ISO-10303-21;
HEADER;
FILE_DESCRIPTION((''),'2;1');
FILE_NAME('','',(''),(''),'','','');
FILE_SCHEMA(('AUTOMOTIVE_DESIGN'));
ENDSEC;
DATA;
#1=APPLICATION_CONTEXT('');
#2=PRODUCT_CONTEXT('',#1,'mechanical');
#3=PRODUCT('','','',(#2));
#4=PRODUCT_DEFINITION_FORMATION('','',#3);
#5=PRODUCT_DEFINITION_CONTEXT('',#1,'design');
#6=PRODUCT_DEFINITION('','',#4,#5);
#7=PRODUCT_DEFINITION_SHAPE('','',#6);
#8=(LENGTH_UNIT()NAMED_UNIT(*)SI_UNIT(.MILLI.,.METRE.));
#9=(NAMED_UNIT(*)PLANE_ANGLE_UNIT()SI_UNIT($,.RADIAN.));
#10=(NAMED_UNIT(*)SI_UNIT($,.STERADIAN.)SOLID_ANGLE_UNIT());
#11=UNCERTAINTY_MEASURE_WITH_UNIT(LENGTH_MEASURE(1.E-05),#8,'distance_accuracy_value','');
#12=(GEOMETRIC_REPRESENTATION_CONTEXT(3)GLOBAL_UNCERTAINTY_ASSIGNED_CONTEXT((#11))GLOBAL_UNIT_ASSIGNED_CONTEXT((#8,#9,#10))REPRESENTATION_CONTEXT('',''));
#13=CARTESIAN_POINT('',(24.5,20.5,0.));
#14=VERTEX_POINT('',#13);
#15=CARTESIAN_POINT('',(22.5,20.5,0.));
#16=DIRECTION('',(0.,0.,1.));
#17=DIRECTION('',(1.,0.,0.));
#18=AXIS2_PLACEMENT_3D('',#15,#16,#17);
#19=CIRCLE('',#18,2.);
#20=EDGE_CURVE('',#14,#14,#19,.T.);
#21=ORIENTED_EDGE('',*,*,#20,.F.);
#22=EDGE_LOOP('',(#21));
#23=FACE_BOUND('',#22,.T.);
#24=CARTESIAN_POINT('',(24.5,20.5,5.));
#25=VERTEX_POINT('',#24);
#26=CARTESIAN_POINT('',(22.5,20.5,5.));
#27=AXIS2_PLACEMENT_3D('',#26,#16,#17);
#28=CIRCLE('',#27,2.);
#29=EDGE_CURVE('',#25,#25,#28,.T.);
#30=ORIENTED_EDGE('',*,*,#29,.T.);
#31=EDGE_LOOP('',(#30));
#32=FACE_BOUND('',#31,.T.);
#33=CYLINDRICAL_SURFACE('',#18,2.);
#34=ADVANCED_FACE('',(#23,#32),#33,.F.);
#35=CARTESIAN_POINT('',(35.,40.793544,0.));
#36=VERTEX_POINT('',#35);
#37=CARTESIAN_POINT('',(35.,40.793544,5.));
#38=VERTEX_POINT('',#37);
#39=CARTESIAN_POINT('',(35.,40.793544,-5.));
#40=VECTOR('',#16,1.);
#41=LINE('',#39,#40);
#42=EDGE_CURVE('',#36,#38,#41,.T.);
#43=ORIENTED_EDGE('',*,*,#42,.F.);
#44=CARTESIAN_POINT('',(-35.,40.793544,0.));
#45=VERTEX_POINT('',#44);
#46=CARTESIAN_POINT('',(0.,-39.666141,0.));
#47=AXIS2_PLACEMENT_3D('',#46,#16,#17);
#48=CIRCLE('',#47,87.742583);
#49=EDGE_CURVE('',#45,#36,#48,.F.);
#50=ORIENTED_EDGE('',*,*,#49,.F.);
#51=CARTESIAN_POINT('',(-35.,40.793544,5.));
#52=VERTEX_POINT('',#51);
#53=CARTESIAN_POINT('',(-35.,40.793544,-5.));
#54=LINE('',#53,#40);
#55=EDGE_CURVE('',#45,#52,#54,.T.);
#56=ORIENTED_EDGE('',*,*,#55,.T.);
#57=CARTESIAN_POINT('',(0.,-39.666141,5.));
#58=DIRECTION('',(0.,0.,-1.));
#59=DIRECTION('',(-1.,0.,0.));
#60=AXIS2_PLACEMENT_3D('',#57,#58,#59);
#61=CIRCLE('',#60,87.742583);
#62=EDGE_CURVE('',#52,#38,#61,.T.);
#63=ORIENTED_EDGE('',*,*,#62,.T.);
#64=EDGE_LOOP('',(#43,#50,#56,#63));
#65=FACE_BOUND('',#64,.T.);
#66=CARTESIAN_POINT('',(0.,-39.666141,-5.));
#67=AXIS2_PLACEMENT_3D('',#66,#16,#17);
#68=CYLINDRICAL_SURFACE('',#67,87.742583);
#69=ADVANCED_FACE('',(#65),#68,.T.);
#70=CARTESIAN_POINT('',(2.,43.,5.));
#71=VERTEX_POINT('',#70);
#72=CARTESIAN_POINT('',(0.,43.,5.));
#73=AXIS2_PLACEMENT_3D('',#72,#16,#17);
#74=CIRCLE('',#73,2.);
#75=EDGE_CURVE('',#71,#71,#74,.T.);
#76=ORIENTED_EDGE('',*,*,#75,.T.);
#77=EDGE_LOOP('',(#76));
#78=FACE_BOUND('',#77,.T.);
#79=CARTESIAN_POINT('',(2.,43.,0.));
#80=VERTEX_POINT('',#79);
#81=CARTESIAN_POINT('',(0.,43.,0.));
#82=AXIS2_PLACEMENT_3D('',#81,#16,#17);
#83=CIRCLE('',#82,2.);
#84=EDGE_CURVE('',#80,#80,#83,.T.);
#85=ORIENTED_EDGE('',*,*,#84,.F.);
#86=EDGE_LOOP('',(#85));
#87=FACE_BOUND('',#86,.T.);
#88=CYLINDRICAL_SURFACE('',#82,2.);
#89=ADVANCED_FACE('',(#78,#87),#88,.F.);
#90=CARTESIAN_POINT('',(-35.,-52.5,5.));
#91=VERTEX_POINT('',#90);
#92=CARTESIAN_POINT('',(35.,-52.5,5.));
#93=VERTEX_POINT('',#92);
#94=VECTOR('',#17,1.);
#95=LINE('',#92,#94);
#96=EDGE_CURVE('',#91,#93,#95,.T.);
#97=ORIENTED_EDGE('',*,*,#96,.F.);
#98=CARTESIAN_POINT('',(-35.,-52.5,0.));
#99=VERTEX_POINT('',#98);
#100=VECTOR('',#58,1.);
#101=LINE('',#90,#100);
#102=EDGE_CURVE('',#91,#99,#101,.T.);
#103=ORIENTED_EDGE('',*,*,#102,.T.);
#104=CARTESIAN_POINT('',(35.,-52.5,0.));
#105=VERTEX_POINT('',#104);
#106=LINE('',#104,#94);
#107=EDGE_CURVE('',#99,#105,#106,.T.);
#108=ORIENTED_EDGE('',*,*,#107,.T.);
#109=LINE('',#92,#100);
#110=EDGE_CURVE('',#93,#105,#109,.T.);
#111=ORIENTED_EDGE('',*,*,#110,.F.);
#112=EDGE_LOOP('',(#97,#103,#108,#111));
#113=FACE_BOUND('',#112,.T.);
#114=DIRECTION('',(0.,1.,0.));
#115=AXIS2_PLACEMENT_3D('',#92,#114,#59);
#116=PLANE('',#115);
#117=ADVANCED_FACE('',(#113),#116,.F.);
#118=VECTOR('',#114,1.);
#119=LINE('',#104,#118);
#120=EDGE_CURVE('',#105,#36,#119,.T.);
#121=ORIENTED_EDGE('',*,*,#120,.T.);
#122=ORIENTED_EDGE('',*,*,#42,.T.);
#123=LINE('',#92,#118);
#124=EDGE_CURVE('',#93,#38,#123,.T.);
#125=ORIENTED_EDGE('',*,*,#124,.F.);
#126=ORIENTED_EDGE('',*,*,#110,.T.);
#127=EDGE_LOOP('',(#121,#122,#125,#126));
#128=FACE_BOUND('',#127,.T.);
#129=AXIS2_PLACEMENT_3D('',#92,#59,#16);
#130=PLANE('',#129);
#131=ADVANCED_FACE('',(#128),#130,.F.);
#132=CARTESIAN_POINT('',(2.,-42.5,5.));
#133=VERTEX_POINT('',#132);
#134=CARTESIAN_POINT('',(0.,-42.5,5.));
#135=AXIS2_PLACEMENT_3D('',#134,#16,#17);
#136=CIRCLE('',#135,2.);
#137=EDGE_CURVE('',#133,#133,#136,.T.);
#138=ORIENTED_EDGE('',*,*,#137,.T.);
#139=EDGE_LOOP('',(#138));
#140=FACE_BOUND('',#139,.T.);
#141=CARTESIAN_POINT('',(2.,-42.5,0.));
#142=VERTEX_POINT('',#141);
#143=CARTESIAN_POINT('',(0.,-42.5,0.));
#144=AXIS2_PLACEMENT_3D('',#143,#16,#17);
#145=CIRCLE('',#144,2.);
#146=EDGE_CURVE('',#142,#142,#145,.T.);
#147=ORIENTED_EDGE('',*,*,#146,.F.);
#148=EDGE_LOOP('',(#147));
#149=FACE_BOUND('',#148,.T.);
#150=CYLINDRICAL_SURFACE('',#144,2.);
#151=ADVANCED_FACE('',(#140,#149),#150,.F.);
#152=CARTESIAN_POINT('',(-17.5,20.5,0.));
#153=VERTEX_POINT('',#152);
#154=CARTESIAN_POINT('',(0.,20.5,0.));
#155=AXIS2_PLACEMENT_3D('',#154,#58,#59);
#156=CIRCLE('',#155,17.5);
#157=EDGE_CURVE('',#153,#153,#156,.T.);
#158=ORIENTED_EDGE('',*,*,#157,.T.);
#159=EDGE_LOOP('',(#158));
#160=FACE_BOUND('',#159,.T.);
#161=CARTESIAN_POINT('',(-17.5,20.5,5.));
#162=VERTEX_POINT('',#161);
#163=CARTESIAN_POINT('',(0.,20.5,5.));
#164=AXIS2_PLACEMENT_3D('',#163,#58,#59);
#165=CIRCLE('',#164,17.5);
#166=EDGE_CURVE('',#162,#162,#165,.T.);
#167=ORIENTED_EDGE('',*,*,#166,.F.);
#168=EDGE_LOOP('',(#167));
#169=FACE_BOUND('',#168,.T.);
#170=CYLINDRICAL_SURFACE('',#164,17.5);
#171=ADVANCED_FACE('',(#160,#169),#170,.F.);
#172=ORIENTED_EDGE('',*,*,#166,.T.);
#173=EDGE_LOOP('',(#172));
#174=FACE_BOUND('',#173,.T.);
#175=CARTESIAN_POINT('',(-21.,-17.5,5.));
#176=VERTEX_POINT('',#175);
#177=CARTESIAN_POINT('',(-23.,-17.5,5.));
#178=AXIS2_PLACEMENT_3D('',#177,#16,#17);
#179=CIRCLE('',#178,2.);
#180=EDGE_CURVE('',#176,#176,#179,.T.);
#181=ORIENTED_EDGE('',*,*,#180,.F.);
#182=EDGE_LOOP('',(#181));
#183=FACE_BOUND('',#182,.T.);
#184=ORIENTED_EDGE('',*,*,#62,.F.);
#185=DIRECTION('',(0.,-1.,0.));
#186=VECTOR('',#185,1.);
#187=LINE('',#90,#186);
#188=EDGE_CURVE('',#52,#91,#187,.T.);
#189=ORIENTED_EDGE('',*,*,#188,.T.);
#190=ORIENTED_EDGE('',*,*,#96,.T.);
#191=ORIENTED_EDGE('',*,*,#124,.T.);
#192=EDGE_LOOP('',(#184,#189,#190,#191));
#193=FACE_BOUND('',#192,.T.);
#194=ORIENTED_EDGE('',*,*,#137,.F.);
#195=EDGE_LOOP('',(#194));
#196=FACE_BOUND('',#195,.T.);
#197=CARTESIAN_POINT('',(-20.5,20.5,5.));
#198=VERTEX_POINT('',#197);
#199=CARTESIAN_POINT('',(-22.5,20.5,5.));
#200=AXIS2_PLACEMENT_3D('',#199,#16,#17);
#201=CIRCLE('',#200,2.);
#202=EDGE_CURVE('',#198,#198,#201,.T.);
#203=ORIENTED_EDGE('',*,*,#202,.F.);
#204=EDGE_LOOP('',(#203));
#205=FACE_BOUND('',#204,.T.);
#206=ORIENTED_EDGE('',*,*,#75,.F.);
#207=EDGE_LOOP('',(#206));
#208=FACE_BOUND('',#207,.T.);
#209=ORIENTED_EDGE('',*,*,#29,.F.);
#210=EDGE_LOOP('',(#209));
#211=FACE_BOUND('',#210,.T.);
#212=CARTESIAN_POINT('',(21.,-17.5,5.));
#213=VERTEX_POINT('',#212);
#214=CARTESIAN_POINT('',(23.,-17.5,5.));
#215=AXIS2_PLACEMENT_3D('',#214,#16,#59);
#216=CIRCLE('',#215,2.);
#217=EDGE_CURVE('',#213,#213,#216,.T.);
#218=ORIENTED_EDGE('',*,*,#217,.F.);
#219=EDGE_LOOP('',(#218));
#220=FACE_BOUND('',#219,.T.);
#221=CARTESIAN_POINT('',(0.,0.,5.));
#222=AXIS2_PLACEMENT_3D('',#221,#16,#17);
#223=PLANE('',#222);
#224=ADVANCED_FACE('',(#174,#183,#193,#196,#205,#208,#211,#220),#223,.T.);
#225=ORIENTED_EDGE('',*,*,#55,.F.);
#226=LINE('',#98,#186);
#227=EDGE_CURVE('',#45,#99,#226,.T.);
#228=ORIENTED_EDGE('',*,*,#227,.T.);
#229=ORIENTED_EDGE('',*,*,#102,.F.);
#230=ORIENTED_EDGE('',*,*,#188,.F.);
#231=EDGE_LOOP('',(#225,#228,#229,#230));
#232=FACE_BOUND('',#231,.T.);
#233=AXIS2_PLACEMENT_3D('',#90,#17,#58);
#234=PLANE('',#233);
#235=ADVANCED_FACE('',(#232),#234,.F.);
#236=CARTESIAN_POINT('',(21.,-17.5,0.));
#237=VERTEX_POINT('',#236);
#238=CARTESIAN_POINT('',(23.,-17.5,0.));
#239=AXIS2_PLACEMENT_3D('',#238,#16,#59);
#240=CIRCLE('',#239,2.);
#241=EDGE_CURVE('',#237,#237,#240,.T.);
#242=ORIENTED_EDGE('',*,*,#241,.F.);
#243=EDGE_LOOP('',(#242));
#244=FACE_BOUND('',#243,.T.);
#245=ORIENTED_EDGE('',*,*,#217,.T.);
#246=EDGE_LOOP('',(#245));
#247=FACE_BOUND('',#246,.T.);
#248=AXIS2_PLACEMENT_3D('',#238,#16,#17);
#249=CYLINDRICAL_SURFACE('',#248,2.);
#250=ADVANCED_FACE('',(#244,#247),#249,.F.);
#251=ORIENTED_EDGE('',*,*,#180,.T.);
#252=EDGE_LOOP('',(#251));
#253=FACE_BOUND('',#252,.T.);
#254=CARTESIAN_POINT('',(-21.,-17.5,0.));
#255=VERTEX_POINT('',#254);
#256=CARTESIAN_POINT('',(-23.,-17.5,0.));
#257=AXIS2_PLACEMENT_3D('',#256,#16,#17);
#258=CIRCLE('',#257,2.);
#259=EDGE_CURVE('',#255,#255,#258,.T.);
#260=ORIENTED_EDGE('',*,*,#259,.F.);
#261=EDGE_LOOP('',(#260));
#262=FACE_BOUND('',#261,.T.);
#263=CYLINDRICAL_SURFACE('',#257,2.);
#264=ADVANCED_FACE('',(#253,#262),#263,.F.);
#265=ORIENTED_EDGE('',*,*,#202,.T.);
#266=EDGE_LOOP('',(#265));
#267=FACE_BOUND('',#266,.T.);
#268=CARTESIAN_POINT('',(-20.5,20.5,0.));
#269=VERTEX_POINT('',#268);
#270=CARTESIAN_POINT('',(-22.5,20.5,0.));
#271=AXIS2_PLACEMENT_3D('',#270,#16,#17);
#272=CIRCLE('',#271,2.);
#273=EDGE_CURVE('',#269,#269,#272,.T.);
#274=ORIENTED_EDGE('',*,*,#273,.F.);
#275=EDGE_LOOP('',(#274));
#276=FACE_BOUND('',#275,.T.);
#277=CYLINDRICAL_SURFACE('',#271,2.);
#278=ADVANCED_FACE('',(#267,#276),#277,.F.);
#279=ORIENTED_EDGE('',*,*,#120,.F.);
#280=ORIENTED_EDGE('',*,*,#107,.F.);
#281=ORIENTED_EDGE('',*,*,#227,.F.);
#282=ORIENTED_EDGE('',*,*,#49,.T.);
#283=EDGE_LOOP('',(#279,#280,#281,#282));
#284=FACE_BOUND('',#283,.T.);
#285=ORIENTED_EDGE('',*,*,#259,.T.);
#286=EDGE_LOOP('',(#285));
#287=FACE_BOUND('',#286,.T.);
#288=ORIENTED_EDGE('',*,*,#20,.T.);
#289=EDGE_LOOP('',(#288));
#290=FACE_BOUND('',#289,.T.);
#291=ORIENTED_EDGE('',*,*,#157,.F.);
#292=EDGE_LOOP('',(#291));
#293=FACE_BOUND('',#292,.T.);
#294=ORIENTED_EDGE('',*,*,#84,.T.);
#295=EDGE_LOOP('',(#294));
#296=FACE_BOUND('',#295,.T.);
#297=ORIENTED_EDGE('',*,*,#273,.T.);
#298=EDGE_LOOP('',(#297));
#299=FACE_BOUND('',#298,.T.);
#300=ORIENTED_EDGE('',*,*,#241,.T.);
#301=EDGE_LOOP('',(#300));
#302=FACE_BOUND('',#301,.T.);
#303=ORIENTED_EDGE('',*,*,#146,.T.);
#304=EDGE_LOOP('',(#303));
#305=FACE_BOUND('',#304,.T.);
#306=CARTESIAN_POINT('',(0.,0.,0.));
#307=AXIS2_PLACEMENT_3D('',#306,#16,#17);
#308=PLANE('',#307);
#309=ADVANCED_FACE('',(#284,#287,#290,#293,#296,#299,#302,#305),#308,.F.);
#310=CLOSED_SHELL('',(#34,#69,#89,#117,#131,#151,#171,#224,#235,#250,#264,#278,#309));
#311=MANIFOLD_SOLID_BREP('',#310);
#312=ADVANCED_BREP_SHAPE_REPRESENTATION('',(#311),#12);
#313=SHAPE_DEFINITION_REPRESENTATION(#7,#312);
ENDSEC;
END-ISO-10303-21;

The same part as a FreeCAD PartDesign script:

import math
import FreeCAD as App
import Part
import Sketcher

V = App.Vector

doc = App.newDocument("Part")
body = doc.addObject("PartDesign::Body", "Body")

# Sketch on XY plane
sketch1 = doc.addObject("Sketcher::SketchObject", "Sketch")
body.addObject(sketch1)
sketch1.AttachmentSupport = (doc.XY_Plane, [""])
sketch1.MapMode = "FlatFace"
sketch1.addGeometry([
    Part.LineSegment(V(-35, 52, 0), V(-35, -52, 0)),
    Part.LineSegment(V(-35, -52, 0), V(35, -52, 0)),
    Part.LineSegment(V(35, -52, 0), V(35, 52, 0)),
    Part.LineSegment(V(35, 52, 0), V(-35, 52, 0)),
], False)
sketch1.addConstraint([
    Sketcher.Constraint("Coincident", 0, 2, 1, 1),
    Sketcher.Constraint("Coincident", 1, 2, 2, 1),
    Sketcher.Constraint("Coincident", 2, 2, 3, 1),
    Sketcher.Constraint("Coincident", 3, 2, 0, 1),
    Sketcher.Constraint("Vertical", 0),
    Sketcher.Constraint("Horizontal", 1),
    Sketcher.Constraint("Vertical", 2),
    Sketcher.Constraint("Horizontal", 3),
    Sketcher.Constraint("Symmetric", 0, 2, 2, 2, -1, 1),
    Sketcher.Constraint("DistanceX", 1, 1, 1, 2, 70.0),
    Sketcher.Constraint("DistanceY", 0, 2, 0, 1, 105.0),
])
pad1 = doc.addObject("PartDesign::Pad", "Pad")
body.addObject(pad1)
pad1.Profile = sketch1
pad1.Length = 5

# Sketch on XY plane
sketch2 = doc.addObject("Sketcher::SketchObject", "Sketch001")
body.addObject(sketch2)
sketch2.AttachmentSupport = (doc.XY_Plane, [""])
sketch2.MapMode = "FlatFace"
sketch2.addGeometry(Part.Circle(V(0, 20, 0), V(0, 0, 1), 18), False)
sketch2.addConstraint([
    Sketcher.Constraint("PointOnObject", 0, 3, -2),
    Sketcher.Constraint("Diameter", 0, 35.0),
    Sketcher.Constraint("DistanceY", -1, 1, 0, 3, 20.5),
])
pocket1 = doc.addObject("PartDesign::Pocket", "Pocket")
body.addObject(pocket1)
pocket1.Profile = sketch2
pocket1.Type = "ThroughAll"
pocket1.Reversed = True

# Sketch on XY plane
sketch3 = doc.addObject("Sketcher::SketchObject", "Sketch002")
body.addObject(sketch3)
sketch3.AttachmentSupport = (doc.XY_Plane, [""])
sketch3.MapMode = "FlatFace"
sketch3.AttachmentOffset = App.Placement(V(0, 0, 5), App.Rotation())
sketch3.addGeometry([
    Part.Circle(V(-22.5, 20.5, 0), V(0, 0, 1), 2),
    Part.Circle(V(0, 43, 0), V(0, 0, 1), 2),
    Part.Circle(V(22.5, 20.5, 0), V(0, 0, 1), 2),
], False)
sketch3.addConstraint([
    Sketcher.Constraint("Equal", 0, 1),
    Sketcher.Constraint("Equal", 1, 2),
    Sketcher.Constraint("Symmetric", 0, 3, 2, 3, -2),
    Sketcher.Constraint("PointOnObject", 1, 3, -2),
    Sketcher.Constraint("Diameter", 0, 4.0),
    Sketcher.Constraint("DistanceY", -1, 1, 1, 3, 43.0),
    Sketcher.Constraint("DistanceX", 0, 3, 2, 3, 45.0),
    Sketcher.Constraint("DistanceY", -1, 1, 0, 3, 20.5),
])
pocket2 = doc.addObject("PartDesign::Pocket", "Pocket001")
body.addObject(pocket2)
pocket2.Profile = sketch3
pocket2.Type = "ThroughAll"

# Sketch on XY plane
sketch4 = doc.addObject("Sketcher::SketchObject", "Sketch003")
body.addObject(sketch4)
sketch4.AttachmentSupport = (doc.XY_Plane, [""])
sketch4.MapMode = "FlatFace"
sketch4.AttachmentOffset = App.Placement(V(0, 0, 5), App.Rotation())
sketch4.addGeometry([
    Part.Circle(V(0, -42.5, 0), V(0, 0, 1), 2),
    Part.Circle(V(-23, -17.5, 0), V(0, 0, 1), 2),
    Part.Circle(V(23, -17.5, 0), V(0, 0, 1), 2),
], False)
sketch4.addConstraint([
    Sketcher.Constraint("Equal", 0, 1),
    Sketcher.Constraint("Equal", 1, 2),
    Sketcher.Constraint("Symmetric", 1, 3, 2, 3, -2),
    Sketcher.Constraint("PointOnObject", 0, 3, -2),
    Sketcher.Constraint("Diameter", 0, 4.0),
    Sketcher.Constraint("DistanceX", 1, 3, -1, 1, 23.0),
    Sketcher.Constraint("DistanceY", 0, 3, 1, 3, 25.0),
    Sketcher.Constraint("DistanceY", 0, 3, -1, 1, 42.5),
])
pocket3 = doc.addObject("PartDesign::Pocket", "Pocket002")
body.addObject(pocket3)
pocket3.Profile = sketch4
pocket3.Length = 5

# Sketch on XY plane
sketch5 = doc.addObject("Sketcher::SketchObject", "Sketch004")
body.addObject(sketch5)
sketch5.AttachmentSupport = (doc.XY_Plane, [""])
sketch5.MapMode = "FlatFace"
sketch5.AttachmentOffset = App.Placement(V(0, 0, 5), App.Rotation())
sketch5.addGeometry([
    Part.LineSegment(V(-35, 52, 0), V(-35, 41, 0)),
    Part.ArcOfCircle(Part.Circle(V(0, -40, 0), V(0, 0, 1), 88), math.radians(66), math.radians(114)),
    Part.LineSegment(V(35, 41, 0), V(35, 52, 0)),
    Part.LineSegment(V(35, 52, 0), V(-35, 52, 0)),
], False)
sketch5.addConstraint([
    Sketcher.Constraint("Coincident", 0, 2, 1, 2),
    Sketcher.Constraint("Coincident", 1, 1, 2, 1),
    Sketcher.Constraint("Coincident", 2, 2, 3, 1),
    Sketcher.Constraint("Coincident", 3, 2, 0, 1),
    Sketcher.Constraint("Vertical", 0),
    Sketcher.Constraint("Vertical", 2),
    Sketcher.Constraint("Horizontal", 3),
    Sketcher.Constraint("Symmetric", 0, 2, 1, 1, -2),
    Sketcher.Constraint("DistanceX", 3, 2, 3, 1, 70.0),
    Sketcher.Constraint("DistanceY", -1, 1, 2, 2, 52.5),
    Sketcher.Constraint("Radius", 1, 87.742583),
    Sketcher.Constraint("DistanceY", 0, 2, 0, 1, 11.706456),
])
pocket4 = doc.addObject("PartDesign::Pocket", "Pocket003")
body.addObject(pocket4)
pocket4.Profile = sketch5
pocket4.Length = 10

doc.recompute()
